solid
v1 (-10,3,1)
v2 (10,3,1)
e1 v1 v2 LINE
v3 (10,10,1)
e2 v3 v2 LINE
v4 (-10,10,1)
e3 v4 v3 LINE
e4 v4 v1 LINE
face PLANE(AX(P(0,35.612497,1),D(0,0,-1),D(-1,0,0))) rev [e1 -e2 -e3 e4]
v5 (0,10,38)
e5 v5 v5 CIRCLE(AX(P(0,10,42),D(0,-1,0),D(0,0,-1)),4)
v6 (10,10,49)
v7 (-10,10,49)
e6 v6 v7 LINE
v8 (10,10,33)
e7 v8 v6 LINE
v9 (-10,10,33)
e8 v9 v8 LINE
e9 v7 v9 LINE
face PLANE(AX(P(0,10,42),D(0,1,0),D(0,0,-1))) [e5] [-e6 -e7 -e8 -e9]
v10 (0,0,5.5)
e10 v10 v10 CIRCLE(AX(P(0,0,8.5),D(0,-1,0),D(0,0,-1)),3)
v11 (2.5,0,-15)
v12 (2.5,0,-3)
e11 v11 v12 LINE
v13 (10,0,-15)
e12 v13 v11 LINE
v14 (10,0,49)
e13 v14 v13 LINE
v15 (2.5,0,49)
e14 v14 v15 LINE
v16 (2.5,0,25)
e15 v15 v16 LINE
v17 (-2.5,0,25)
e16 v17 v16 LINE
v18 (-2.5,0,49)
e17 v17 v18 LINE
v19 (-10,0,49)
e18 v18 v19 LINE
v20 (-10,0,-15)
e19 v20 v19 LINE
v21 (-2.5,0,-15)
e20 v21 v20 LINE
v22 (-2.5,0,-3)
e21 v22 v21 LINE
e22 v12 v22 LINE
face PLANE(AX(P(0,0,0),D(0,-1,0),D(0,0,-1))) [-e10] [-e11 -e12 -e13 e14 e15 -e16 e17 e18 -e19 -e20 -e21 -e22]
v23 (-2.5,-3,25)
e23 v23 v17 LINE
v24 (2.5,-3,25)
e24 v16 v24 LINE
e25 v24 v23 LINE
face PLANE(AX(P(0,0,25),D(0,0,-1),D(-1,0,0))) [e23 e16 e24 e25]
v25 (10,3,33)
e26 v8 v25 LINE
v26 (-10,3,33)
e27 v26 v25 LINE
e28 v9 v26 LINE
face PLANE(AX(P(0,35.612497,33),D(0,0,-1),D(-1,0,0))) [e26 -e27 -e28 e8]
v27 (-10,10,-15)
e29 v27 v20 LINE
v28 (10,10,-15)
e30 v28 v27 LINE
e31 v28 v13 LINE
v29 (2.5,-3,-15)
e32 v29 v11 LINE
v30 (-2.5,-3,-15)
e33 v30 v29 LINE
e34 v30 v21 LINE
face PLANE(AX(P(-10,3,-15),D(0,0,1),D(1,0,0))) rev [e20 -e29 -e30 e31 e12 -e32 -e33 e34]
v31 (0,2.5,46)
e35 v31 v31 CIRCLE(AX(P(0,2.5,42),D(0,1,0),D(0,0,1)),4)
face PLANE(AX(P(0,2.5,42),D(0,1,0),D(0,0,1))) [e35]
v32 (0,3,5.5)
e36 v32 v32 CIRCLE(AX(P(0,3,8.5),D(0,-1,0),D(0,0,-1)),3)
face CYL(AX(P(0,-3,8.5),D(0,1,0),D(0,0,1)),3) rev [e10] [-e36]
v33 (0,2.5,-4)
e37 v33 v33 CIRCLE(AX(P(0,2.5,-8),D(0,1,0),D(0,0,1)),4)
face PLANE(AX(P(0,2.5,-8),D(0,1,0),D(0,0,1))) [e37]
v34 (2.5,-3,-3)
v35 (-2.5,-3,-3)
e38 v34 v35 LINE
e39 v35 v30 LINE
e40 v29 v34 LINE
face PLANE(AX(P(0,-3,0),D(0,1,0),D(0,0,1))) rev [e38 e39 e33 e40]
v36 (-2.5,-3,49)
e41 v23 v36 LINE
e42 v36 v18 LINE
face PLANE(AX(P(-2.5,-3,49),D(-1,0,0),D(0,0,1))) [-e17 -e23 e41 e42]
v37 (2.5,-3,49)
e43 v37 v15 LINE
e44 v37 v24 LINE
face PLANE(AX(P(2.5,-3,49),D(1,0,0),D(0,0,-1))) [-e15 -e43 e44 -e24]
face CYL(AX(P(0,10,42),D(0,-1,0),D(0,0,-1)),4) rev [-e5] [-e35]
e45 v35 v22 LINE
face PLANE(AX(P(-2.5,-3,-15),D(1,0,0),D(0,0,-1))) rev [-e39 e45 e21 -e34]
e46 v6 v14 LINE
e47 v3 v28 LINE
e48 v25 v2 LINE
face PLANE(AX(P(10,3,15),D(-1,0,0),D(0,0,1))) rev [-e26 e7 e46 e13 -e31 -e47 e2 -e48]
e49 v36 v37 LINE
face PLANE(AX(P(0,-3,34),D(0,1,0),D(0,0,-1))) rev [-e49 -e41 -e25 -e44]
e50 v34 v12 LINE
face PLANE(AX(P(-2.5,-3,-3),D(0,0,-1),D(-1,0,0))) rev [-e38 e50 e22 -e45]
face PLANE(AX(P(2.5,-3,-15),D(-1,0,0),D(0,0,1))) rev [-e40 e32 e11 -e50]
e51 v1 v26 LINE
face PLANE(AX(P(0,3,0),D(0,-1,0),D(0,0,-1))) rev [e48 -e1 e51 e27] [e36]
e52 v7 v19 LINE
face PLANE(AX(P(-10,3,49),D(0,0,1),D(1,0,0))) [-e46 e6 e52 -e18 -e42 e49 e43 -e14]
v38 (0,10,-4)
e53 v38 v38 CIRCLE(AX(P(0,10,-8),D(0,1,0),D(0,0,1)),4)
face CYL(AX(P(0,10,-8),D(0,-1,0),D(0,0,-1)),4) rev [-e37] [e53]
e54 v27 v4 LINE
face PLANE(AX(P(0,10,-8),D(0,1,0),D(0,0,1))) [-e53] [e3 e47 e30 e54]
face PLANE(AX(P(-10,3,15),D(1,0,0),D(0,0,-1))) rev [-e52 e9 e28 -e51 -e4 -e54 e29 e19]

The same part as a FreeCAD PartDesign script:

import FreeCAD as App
import Part
import Sketcher
Q = App.Units.Quantity


def add_polygon(sketch, points):
    """Adds a closed chain of lines whose ends are joined by coincident constraints."""
    first, n = sketch.GeometryCount, len(points)
    for a, b in zip(points, points[1:] + points[:1]):
        sketch.addGeometry(Part.LineSegment(App.Vector(*a, 0), App.Vector(*b, 0)), False)
    for i in range(n):
        sketch.addConstraint(Sketcher.Constraint("Coincident", first + i, 2, first + (i + 1) % n, 1))

doc = App.newDocument("Part")
body = doc.addObject("PartDesign::Body", "Body")

# Sketch on XZ plane
sketch1 = body.newObject("Sketcher::SketchObject", "Sketch")
sketch1.AttachmentSupport = (doc.getObject("XZ_Plane"), [""])
sketch1.MapMode = "FlatFace"
add_polygon(sketch1, [(-10, -15), (-10, 15), (10, 15), (10, -15)])  # lines 0-3
sketch1.addConstraint(Sketcher.Constraint("Vertical", 0))
sketch1.addConstraint(Sketcher.Constraint("Horizontal", 1))
sketch1.addConstraint(Sketcher.Constraint("Vertical", 2))
sketch1.addConstraint(Sketcher.Constraint("Horizontal", 3))
sketch1.addConstraint(Sketcher.Constraint("Symmetric", 0, 2, 2, 2, -1, 1))
sketch1.addConstraint(Sketcher.Constraint("DistanceX", 1, 1, 1, 2, Q("20 mm")))
sketch1.addConstraint(Sketcher.Constraint("DistanceY", 0, 1, 0, 2, Q("30 mm")))
pad1 = body.newObject("PartDesign::Pad", "Pad")
pad1.Profile = sketch1
pad1.Length = 3
pad1.Reversed = True

# Sketch on XZ plane
sketch2 = body.newObject("Sketcher::SketchObject", "Sketch001")
sketch2.AttachmentSupport = (doc.getObject("XZ_Plane"), [""])
sketch2.MapMode = "FlatFace"
add_polygon(sketch2, [(-2.5, -3), (-2.5, -15), (2.5, -15), (2.5, -3)])  # lines 0-3
sketch2.addConstraint(Sketcher.Constraint("Vertical", 0))
sketch2.addConstraint(Sketcher.Constraint("Horizontal", 1))
sketch2.addConstraint(Sketcher.Constraint("Vertical", 2))
sketch2.addConstraint(Sketcher.Constraint("Horizontal", 3))
sketch2.addConstraint(Sketcher.Constraint("DistanceX", 1, 1, 1, 2, Q("5 mm")))
sketch2.addConstraint(Sketcher.Constraint("DistanceY", 0, 2, 0, 1, Q("12 mm")))
sketch2.addConstraint(Sketcher.Constraint("DistanceY", 0, 2, -1, 1, Q("15 mm")))
sketch2.addConstraint(Sketcher.Constraint("DistanceX", 0, 2, -1, 1, Q("2.5 mm")))
pad2 = body.newObject("PartDesign::Pad", "Pad001")
pad2.Profile = sketch2
pad2.Length = 3

# Sketch on XZ plane
sketch3 = body.newObject("Sketcher::SketchObject", "Sketch002")
sketch3.AttachmentSupport = (doc.getObject("XZ_Plane"), [""])
sketch3.MapMode = "FlatFace"
sketch3.AttachmentOffset = App.Placement(App.Vector(0, 0, -3), App.Rotation())
sketch3.addGeometry(Part.Circle(App.Vector(0, -8, 0), App.Vector(0, 0, 1), 7), False)
sketch3.addGeometry(Part.Circle(App.Vector(0, -8, 0), App.Vector(0, 0, 1), 4), False)
sketch3.addConstraint(Sketcher.Constraint("Coincident", 1, 3, 0, 3))
sketch3.addConstraint(Sketcher.Constraint("PointOnObject", 0, 3, -2))
sketch3.addConstraint(Sketcher.Constraint("Diameter", 0, Q("14 mm")))
sketch3.addConstraint(Sketcher.Constraint("Diameter", 1, Q("8 mm")))
sketch3.addConstraint(Sketcher.Constraint("DistanceY", 0, 3, -1, 1, Q("8 mm")))
pad3 = body.newObject("PartDesign::Pad", "Pad002")
pad3.Profile = sketch3
pad3.Length = 7
pad3.Reversed = True

# Sketch on XZ plane
sketch4 = body.newObject("Sketcher::SketchObject", "Sketch003")
sketch4.AttachmentSupport = (doc.getObject("XZ_Plane"), [""])
sketch4.MapMode = "FlatFace"
sketch4.AttachmentOffset = App.Placement(App.Vector(0, 0, -3), App.Rotation())
sketch4.addGeometry(Part.Circle(App.Vector(0, -8, 0), App.Vector(0, 0, 1), 4), False)
sketch4.addConstraint(Sketcher.Constraint("PointOnObject", 0, 3, -2))
sketch4.addConstraint(Sketcher.Constraint("Diameter", 0, Q("8 mm")))
sketch4.addConstraint(Sketcher.Constraint("DistanceY", 0, 3, -1, 1, Q("8 mm")))
pad4 = body.newObject("PartDesign::Pad", "Pad003")
pad4.Profile = sketch4
pad4.Length = 1
pad4.Reversed = True

# Sketch on XZ plane
sketch5 = body.newObject("Sketcher::SketchObject", "Sketch004")
sketch5.AttachmentSupport = (doc.getObject("XZ_Plane"), [""])
sketch5.MapMode = "FlatFace"
sketch5.AttachmentOffset = App.Placement(App.Vector(0, 0, -3), App.Rotation())
sketch5.addGeometry(Part.Circle(App.Vector(0, 8.5, 0), App.Vector(0, 0, 1), 3), False)
sketch5.addConstraint(Sketcher.Constraint("PointOnObject", 0, 3, -2))
sketch5.addConstraint(Sketcher.Constraint("Diameter", 0, Q("6 mm")))
sketch5.addConstraint(Sketcher.Constraint("DistanceY", -1, 1, 0, 3, Q("8.5 mm")))
pocket1 = body.newObject("PartDesign::Pocket", "Pocket")
pocket1.Profile = sketch5
pocket1.Type = "ThroughAll"
pocket1.Midplane = True

# Sketch on XZ plane
sketch6 = body.newObject("Sketcher::SketchObject", "Sketch005")
sketch6.AttachmentSupport = (doc.getObject("XZ_Plane"), [""])
sketch6.MapMode = "FlatFace"
sketch6.AttachmentOffset = App.Placement(App.Vector(0, 0, -3), App.Rotation())
add_polygon(sketch6, [(10, -15), (-10, -15), (-10, 1), (10, 1)])  # lines 0-3
sketch6.addGeometry(Part.Circle(App.Vector(0, -8, 0), App.Vector(0, 0, 1), 4), False)  # 4
sketch6.addConstraint(Sketcher.Constraint("Horizontal", 0))
sketch6.addConstraint(Sketcher.Constraint("Vertical", 1))
sketch6.addConstraint(Sketcher.Constraint("Horizontal", 2))
sketch6.addConstraint(Sketcher.Constraint("Vertical", 3))
sketch6.addConstraint(Sketcher.Constraint("PointOnObject", 4, 3, -2))
sketch6.addConstraint(Sketcher.Constraint("Diameter", 4, Q("8 mm")))
sketch6.addConstraint(Sketcher.Constraint("DistanceX", 0, 2, 0, 1, Q("20 mm")))
sketch6.addConstraint(Sketcher.Constraint("DistanceY", 1, 1, 1, 2, Q("16 mm")))
sketch6.addConstraint(Sketcher.Constraint("DistanceY", 4, 3, -1, 1, Q("8 mm")))
sketch6.addConstraint(Sketcher.Constraint("DistanceX", 0, 2, -1, 1, Q("10 mm")))
sketch6.addConstraint(Sketcher.Constraint("DistanceY", 0, 2, -1, 1, Q("15 mm")))
pad5 = body.newObject("PartDesign::Pad", "Pad004")
pad5.Profile = sketch6
pad5.Length = 7
pad5.Reversed = True

# Sketch on XY plane
sketch7 = body.newObject("Sketcher::SketchObject", "Sketch006")
sketch7.AttachmentSupport = (doc.getObject("XY_Plane"), [""])
sketch7.MapMode = "FlatFace"
sketch7.AttachmentOffset = App.Placement(App.Vector(0, 0, 15), App.Rotation())
add_polygon(sketch7, [(-10, 3), (-10, 0), (10, 0), (10, 3)])  # lines 0-3
sketch7.addConstraint(Sketcher.Constraint("Vertical", 0))
sketch7.addConstraint(Sketcher.Constraint("Horizontal", 1))
sketch7.addConstraint(Sketcher.Constraint("Vertical", 2))
sketch7.addConstraint(Sketcher.Constraint("Horizontal", 3))
sketch7.addConstraint(Sketcher.Constraint("Symmetric", 0, 2, 1, 2, -1, 1))
sketch7.addConstraint(Sketcher.Constraint("DistanceX", 1, 1, 1, 2, Q("20 mm")))
sketch7.addConstraint(Sketcher.Constraint("DistanceY", 0, 2, 0, 1, Q("3 mm")))
pad6 = body.newObject("PartDesign::Pad", "Pad005")
pad6.Profile = sketch7
pad6.Length = 19
doc.recompute()

datumplane = body.newObject("PartDesign::Plane", "DatumPlane")
datumplane.AttachmentSupport = (doc.getObject("XY_Plane"), [""])
datumplane.MapMode = "FlatFace"
datumplane.AttachmentOffset = App.Placement(App.Vector(0, 0, 17), App.Rotation())
mirrored = body.newObject("PartDesign::Mirrored", "Mirrored")
mirrored.Originals = [pad1, pad2, pad3, pad4, pad5]
mirrored.MirrorPlane = (datumplane, [""])
body.Tip = mirrored

# Sketch on XY plane
sketch8 = body.newObject("Sketcher::SketchObject", "Sketch007")
sketch8.AttachmentSupport = (doc.getObject("XY_Plane"), [""])
sketch8.MapMode = "FlatFace"
sketch8.AttachmentOffset = App.Placement(App.Vector(0, 0, 37), App.Rotation())
add_polygon(sketch8, [(2.5, 0), (2.5, -3), (-2.5, -3), (-2.5, 0)])  # lines 0-3
sketch8.addConstraint(Sketcher.Constraint("Vertical", 0))
sketch8.addConstraint(Sketcher.Constraint("Horizontal", 1))
sketch8.addConstraint(Sketcher.Constraint("Vertical", 2))
sketch8.addConstraint(Sketcher.Constraint("Horizontal", 3))
sketch8.addConstraint(Sketcher.Constraint("Symmetric", 2, 2, 3, 2, -1, 1))
sketch8.addConstraint(Sketcher.Constraint("DistanceX", 1, 2, 1, 1, Q("5 mm")))
sketch8.addConstraint(Sketcher.Constraint("DistanceY", 0, 2, 0, 1, Q("3 mm")))
pad7 = body.newObject("PartDesign::Pad", "Pad006")
pad7.Profile = sketch8
pad7.Length = 12
pad7.Reversed = True

# Sketch on XZ plane
sketch9 = body.newObject("Sketcher::SketchObject", "Sketch008")
sketch9.AttachmentSupport = (doc.getObject("XZ_Plane"), [""])
sketch9.MapMode = "FlatFace"
sketch9.AttachmentOffset = App.Placement(App.Vector(0, 0, -2.5), App.Rotation())
sketch9.addGeometry(Part.Circle(App.Vector(0, -8, 0), App.Vector(0, 0, 1), 4), False)
sketch9.addGeometry(Part.Circle(App.Vector(0, 42, 0), App.Vector(0, 0, 1), 4), False)
sketch9.addConstraint(Sketcher.Constraint("Equal", 0, 1))
sketch9.addConstraint(Sketcher.Constraint("PointOnObject", 0, 3, -2))
sketch9.addConstraint(Sketcher.Constraint("PointOnObject", 1, 3, -2))
sketch9.addConstraint(Sketcher.Constraint("Diameter", 0, Q("8 mm")))
sketch9.addConstraint(Sketcher.Constraint("DistanceY", 0, 3, -1, 1, Q("8 mm")))
sketch9.addConstraint(Sketcher.Constraint("DistanceY", -1, 1, 1, 3, Q("42 mm")))
pocket2 = body.newObject("PartDesign::Pocket", "Pocket001")
pocket2.Profile = sketch9
pocket2.Length = 1.5

doc.recompute()
